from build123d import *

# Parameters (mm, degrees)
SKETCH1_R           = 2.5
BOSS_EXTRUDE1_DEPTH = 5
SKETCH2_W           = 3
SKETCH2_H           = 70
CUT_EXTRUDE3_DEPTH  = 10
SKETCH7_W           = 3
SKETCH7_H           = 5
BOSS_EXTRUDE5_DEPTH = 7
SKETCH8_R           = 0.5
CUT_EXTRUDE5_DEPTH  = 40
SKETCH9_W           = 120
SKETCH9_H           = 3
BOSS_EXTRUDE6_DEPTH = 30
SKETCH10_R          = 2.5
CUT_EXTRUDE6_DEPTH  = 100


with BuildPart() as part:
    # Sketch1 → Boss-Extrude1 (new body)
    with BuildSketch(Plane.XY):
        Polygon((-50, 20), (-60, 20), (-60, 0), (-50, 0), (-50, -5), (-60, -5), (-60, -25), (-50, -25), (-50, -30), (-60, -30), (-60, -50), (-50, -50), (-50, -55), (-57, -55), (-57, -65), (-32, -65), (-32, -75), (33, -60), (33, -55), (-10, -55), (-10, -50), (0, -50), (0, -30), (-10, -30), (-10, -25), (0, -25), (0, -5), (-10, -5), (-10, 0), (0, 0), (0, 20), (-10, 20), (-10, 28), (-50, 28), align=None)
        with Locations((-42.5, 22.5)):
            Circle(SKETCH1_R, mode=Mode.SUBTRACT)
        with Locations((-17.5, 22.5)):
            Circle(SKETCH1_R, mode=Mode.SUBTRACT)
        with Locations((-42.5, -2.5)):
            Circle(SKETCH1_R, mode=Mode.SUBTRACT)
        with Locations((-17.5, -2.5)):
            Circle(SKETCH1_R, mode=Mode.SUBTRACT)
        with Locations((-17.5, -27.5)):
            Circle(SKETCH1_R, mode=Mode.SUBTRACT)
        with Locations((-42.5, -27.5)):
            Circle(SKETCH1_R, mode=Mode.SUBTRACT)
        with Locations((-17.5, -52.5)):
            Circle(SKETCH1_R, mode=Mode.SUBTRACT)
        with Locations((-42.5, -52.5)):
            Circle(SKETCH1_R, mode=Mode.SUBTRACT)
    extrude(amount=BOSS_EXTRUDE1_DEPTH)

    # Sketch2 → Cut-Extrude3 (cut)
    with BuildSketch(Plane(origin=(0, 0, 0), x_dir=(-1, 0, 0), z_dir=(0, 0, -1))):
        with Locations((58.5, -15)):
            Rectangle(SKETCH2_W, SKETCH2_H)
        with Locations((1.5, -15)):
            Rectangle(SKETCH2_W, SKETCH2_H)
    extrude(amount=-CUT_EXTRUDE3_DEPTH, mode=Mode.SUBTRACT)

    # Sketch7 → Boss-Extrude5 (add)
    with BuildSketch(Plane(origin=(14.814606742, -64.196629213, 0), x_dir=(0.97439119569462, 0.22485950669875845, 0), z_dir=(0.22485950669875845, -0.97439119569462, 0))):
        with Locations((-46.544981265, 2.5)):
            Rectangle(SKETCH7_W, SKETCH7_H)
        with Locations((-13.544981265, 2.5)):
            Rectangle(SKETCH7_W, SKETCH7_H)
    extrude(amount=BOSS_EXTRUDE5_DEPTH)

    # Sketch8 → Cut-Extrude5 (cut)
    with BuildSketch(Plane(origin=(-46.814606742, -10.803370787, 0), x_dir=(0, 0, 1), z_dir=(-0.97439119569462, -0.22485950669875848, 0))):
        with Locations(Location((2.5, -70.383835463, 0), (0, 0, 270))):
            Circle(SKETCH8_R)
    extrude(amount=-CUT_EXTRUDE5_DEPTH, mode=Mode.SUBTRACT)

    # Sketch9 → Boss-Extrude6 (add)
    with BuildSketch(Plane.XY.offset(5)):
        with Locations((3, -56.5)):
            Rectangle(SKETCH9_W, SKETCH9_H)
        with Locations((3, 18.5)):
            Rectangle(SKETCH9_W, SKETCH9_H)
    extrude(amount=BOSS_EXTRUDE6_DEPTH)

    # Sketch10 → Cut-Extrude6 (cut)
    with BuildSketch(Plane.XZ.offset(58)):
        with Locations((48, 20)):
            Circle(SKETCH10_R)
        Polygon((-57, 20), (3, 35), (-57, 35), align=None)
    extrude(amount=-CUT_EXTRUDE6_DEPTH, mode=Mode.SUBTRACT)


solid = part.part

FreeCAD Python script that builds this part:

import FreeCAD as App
import Part
import Sketcher
from FreeCAD import Vector
Q = App.Units.Quantity

doc = App.newDocument("Part")
params = doc.addObject("Spreadsheet::Sheet", "Params")
for row, (alias, value) in enumerate([
    ("sketch1_diameter", "5 mm"),
    ("sketch1_width", "10 mm"),
    ("sketch1_width2", "7 mm"),
    ("sketch1_width3", "25 mm"),
    ("sketch1_width4", "43 mm"),
    ("pad1_length", "5 mm"),
    ("sketch2_width", "3 mm"),
    ("sketch2_height", "70 mm"),
    ("pocket1_length", "10 mm"),
    ("sketch3_width", "3 mm"),
    ("sketch3_height", "5 mm"),
    ("pad2_length", "7 mm"),
    ("sketch4_diameter", "1 mm"),
    ("pocket2_length", "40 mm"),
    ("sketch5_width", "120 mm"),
    ("sketch5_height", "3 mm"),
    ("pad3_length", "30 mm"),
    ("sketch6_diameter", "5 mm"),
    ("sketch6_width", "60 mm"),
    ("sketch6_height", "15 mm"),
    ("pocket3_length", "100 mm"),
], start=1):
    params.set(f"A{row}", alias)
    params.set(f"B{row}", "=" + value)
    params.setAlias(f"B{row}", alias)

body = doc.addObject("PartDesign::Body", "Body")

# Sketch on XY plane
sketch1 = doc.addObject("Sketcher::SketchObject", "Sketch")
body.addObject(sketch1)
sketch1.AttachmentSupport = (doc.XY_Plane, [""])
sketch1.MapMode = "FlatFace"
sketch1.addGeometry([
    Part.LineSegment(Vector(-50, 20, 0), Vector(-60, 20, 0)),  # 0
    Part.LineSegment(Vector(-60, 20, 0), Vector(-60, 0, 0)),  # 1
    Part.LineSegment(Vector(-60, 0, 0), Vector(-50, 0, 0)),  # 2
    Part.LineSegment(Vector(-50, 0, 0), Vector(-50, -5, 0)),  # 3
    Part.LineSegment(Vector(-50, -5, 0), Vector(-60, -5, 0)),  # 4
    Part.LineSegment(Vector(-60, -5, 0), Vector(-60, -25, 0)),  # 5
    Part.LineSegment(Vector(-60, -25, 0), Vector(-50, -25, 0)),  # 6
    Part.LineSegment(Vector(-50, -25, 0), Vector(-50, -30, 0)),  # 7
    Part.LineSegment(Vector(-50, -30, 0), Vector(-60, -30, 0)),  # 8
    Part.LineSegment(Vector(-60, -30, 0), Vector(-60, -50, 0)),  # 9
    Part.LineSegment(Vector(-60, -50, 0), Vector(-50, -50, 0)),  # 10
    Part.LineSegment(Vector(-50, -50, 0), Vector(-50, -55, 0)),  # 11
    Part.LineSegment(Vector(-50, -55, 0), Vector(-57, -55, 0)),  # 12
    Part.LineSegment(Vector(-57, -55, 0), Vector(-57, -65, 0)),  # 13
    Part.LineSegment(Vector(-57, -65, 0), Vector(-32, -65, 0)),  # 14
    Part.LineSegment(Vector(-32, -65, 0), Vector(-32, -75, 0)),  # 15
    Part.LineSegment(Vector(-32, -75, 0), Vector(33, -60, 0)),  # 16
    Part.LineSegment(Vector(33, -60, 0), Vector(33, -55, 0)),  # 17
    Part.LineSegment(Vector(33, -55, 0), Vector(-10, -55, 0)),  # 18
    Part.LineSegment(Vector(-10, -55, 0), Vector(-10, -50, 0)),  # 19
    Part.LineSegment(Vector(-10, -50, 0), Vector(0, -50, 0)),  # 20
    Part.LineSegment(Vector(0, -50, 0), Vector(0, -30, 0)),  # 21
    Part.LineSegment(Vector(0, -30, 0), Vector(-10, -30, 0)),  # 22
    Part.LineSegment(Vector(-10, -30, 0), Vector(-10, -25, 0)),  # 23
    Part.LineSegment(Vector(-10, -25, 0), Vector(0, -25, 0)),  # 24
    Part.LineSegment(Vector(0, -25, 0), Vector(0, -5, 0)),  # 25
    Part.LineSegment(Vector(0, -5, 0), Vector(-10, -5, 0)),  # 26
    Part.LineSegment(Vector(-10, -5, 0), Vector(-10, 0, 0)),  # 27
    Part.LineSegment(Vector(-10, 0, 0), Vector(0, 0, 0)),  # 28
    Part.LineSegment(Vector(0, 0, 0), Vector(0, 20, 0)),  # 29
    Part.LineSegment(Vector(0, 20, 0), Vector(-10, 20, 0)),  # 30
    Part.LineSegment(Vector(-10, 20, 0), Vector(-10, 28, 0)),  # 31
    Part.LineSegment(Vector(-10, 28, 0), Vector(-50, 28, 0)),  # 32
    Part.LineSegment(Vector(-50, 28, 0), Vector(-50, 20, 0)),  # 33
    Part.Circle(Vector(-42.5, -52.5, 0), Vector(0, 0, 1), 2.5),  # 34
    Part.Circle(Vector(-42.5, -27.5, 0), Vector(0, 0, 1), 2.5),  # 35
    Part.Circle(Vector(-17.5, -52.5, 0), Vector(0, 0, 1), 2.5),  # 36
    Part.Circle(Vector(-17.5, -27.5, 0), Vector(0, 0, 1), 2.5),  # 37
    Part.Circle(Vector(-42.5, -2.5, 0), Vector(0, 0, 1), 2.5),  # 38
    Part.Circle(Vector(-42.5, 22.5, 0), Vector(0, 0, 1), 2.5),  # 39
    Part.Circle(Vector(-17.5, -2.5, 0), Vector(0, 0, 1), 2.5),  # 40
    Part.Circle(Vector(-17.5, 22.5, 0), Vector(0, 0, 1), 2.5),  # 41
], False)
sketch1.addConstraint([
    Sketcher.Constraint("Coincident", 0, 2, 1, 1),
    Sketcher.Constraint("Coincident", 1, 2, 2, 1),
    Sketcher.Constraint("Coincident", 2, 2, 3, 1),
    Sketcher.Constraint("Coincident", 3, 2, 4, 1),
    Sketcher.Constraint("Coincident", 4, 2, 5, 1),
    Sketcher.Constraint("Coincident", 5, 2, 6, 1),
    Sketcher.Constraint("Coincident", 6, 2, 7, 1),
    Sketcher.Constraint("Coincident", 7, 2, 8, 1),
    Sketcher.Constraint("Coincident", 8, 2, 9, 1),
    Sketcher.Constraint("Coincident", 9, 2, 10, 1),
    Sketcher.Constraint("Coincident", 10, 2, 11, 1),
    Sketcher.Constraint("Coincident", 11, 2, 12, 1),
    Sketcher.Constraint("Coincident", 12, 2, 13, 1),
    Sketcher.Constraint("Coincident", 13, 2, 14, 1),
    Sketcher.Constraint("Coincident", 14, 2, 15, 1),
    Sketcher.Constraint("Coincident", 15, 2, 16, 1),
    Sketcher.Constraint("Coincident", 16, 2, 17, 1),
    Sketcher.Constraint("Coincident", 17, 2, 18, 1),
    Sketcher.Constraint("Coincident", 18, 2, 19, 1),
    Sketcher.Constraint("Coincident", 19, 2, 20, 1),
    Sketcher.Constraint("Coincident", 20, 2, 21, 1),
    Sketcher.Constraint("Coincident", 21, 2, 22, 1),
    Sketcher.Constraint("Coincident", 22, 2, 23, 1),
    Sketcher.Constraint("Coincident", 23, 2, 24, 1),
    Sketcher.Constraint("Coincident", 24, 2, 25, 1),
    Sketcher.Constraint("Coincident", 25, 2, 26, 1),
    Sketcher.Constraint("Coincident", 26, 2, 27, 1),
    Sketcher.Constraint("Coincident", 27, 2, 28, 1),
    Sketcher.Constraint("Coincident", 28, 2, 29, 1),
    Sketcher.Constraint("Coincident", 29, 2, 30, 1),
    Sketcher.Constraint("Coincident", 30, 2, 31, 1),
    Sketcher.Constraint("Coincident", 31, 2, 32, 1),
    Sketcher.Constraint("Coincident", 32, 2, 33, 1),
    Sketcher.Constraint("Coincident", 33, 2, 0, 1),
    Sketcher.Constraint("Horizontal", 0),
    Sketcher.Constraint("Vertical", 1),
    Sketcher.Constraint("Horizontal", 2),
    Sketcher.Constraint("Vertical", 3),
    Sketcher.Constraint("Horizontal", 4),
    Sketcher.Constraint("Vertical", 5),
    Sketcher.Constraint("Horizontal", 6),
    Sketcher.Constraint("Vertical", 7),
    Sketcher.Constraint("Horizontal", 8),
    Sketcher.Constraint("Vertical", 9),
    Sketcher.Constraint("Horizontal", 10),
    Sketcher.Constraint("Vertical", 11),
    Sketcher.Constraint("Horizontal", 12),
    Sketcher.Constraint("Vertical", 13),
    Sketcher.Constraint("Horizontal", 14),
    Sketcher.Constraint("Vertical", 15),
    Sketcher.Constraint("Vertical", 17),
    Sketcher.Constraint("Horizontal", 18),
    Sketcher.Constraint("Vertical", 19),
    Sketcher.Constraint("Horizontal", 20),
    Sketcher.Constraint("Vertical", 21),
    Sketcher.Constraint("Horizontal", 22),
    Sketcher.Constraint("Vertical", 23),
    Sketcher.Constraint("Horizontal", 24),
    Sketcher.Constraint("Vertical", 25),
    Sketcher.Constraint("Horizontal", 26),
    Sketcher.Constraint("Vertical", 27),
    Sketcher.Constraint("Horizontal", 28),
    Sketcher.Constraint("Vertical", 29),
    Sketcher.Constraint("Horizontal", 30),
    Sketcher.Constraint("Vertical", 31),
    Sketcher.Constraint("Horizontal", 32),
    Sketcher.Constraint("Vertical", 33),
    Sketcher.Constraint("Coincident", 28, 2, -1, 1),
    Sketcher.Constraint("Equal", 34, 35),
    Sketcher.Constraint("Equal", 35, 36),
    Sketcher.Constraint("Equal", 36, 37),
    Sketcher.Constraint("Equal", 37, 38),
    Sketcher.Constraint("Equal", 38, 39),
    Sketcher.Constraint("Equal", 39, 40),
    Sketcher.Constraint("Equal", 40, 41),
    Sketcher.Constraint("PointOnObject", 1, 2, -1),
    Sketcher.Constraint("PointOnObject", 20, 2, -2),
    Sketcher.Constraint("PointOnObject", 24, 2, -2),
    Sketcher.Constraint("Horizontal", 34, 3, 36, 3),
    Sketcher.Constraint("Horizontal", 35, 3, 37, 3),
    Sketcher.Constraint("Horizontal", 38, 3, 40, 3),
    Sketcher.Constraint("Horizontal", 39, 3, 41, 3),
    Sketcher.Constraint("Horizontal", 12, 2, 17, 2),
    Sketcher.Constraint("Horizontal", 10, 2, 19, 2),
    Sketcher.Constraint("Horizontal", 8, 2, 21, 2),
    Sketcher.Constraint("Horizontal", 6, 2, 23, 2),
    Sketcher.Constraint("Horizontal", 4, 2, 25, 2),
    Sketcher.Constraint("Horizontal", 0, 2, 29, 2),
    Sketcher.Constraint("Vertical", 34, 3, 35, 3),
    Sketcher.Constraint("Vertical", 36, 3, 37, 3),
    Sketcher.Constraint("Vertical", 35, 3, 38, 3),
    Sketcher.Constraint("Vertical", 38, 3, 39, 3),
    Sketcher.Constraint("Vertical", 37, 3, 40, 3),
    Sketcher.Constraint("Vertical", 40, 3, 41, 3),
    Sketcher.Constraint("Vertical", 1, 2, 4, 2),
    Sketcher.Constraint("Vertical", 3, 2, 6, 2),
    Sketcher.Constraint("Vertical", 5, 2, 8, 2),
    Sketcher.Constraint("Vertical", 7, 2, 10, 2),
    Sketcher.Constraint("Vertical", 19, 2, 22, 2),
    Sketcher.Constraint("Vertical", 23, 2, 26, 2),
    Sketcher.Constraint("Vertical", 27, 2, 30, 2),
    Sketcher.Constraint("Vertical", 11, 2, 32, 2),
    Sketcher.Constraint("Equal", 10, 20),
    Sketcher.Constraint("Equal", 1, 5),
    Sketcher.Constraint("Equal", 3, 7),
    Sketcher.Constraint("Equal", 5, 9),
    Sketcher.Constraint("Equal", 7, 11),
    Sketcher.Constraint("Equal", 30, 13),
    Sketcher.Constraint("Equal", 13, 15),
    Sketcher.Constraint("Equal", 11, 17),
    Sketcher.Constraint("Diameter", 34, Q("5 mm")),
    Sketcher.Constraint("DistanceX", 0, 2, 0, 1, Q("10 mm")),
    Sketcher.Constraint("DistanceX", 12, 2, 12, 1, Q("7 mm")),
    Sketcher.Constraint("DistanceX", 14, 1, 14, 2, Q("25 mm")),
    Sketcher.Constraint("DistanceX", 18, 2, 18, 1, Q("43 mm")),
    Sketcher.Constraint("DistanceX", 32, 2, 32, 1, Q("40 mm")),
    Sketcher.Constraint("DistanceY", 1, 2, 1, 1, Q("20 mm")),
    Sketcher.Constraint("DistanceY", 3, 2, 3, 1, Q("5 mm")),
    Sketcher.Constraint("DistanceY", 31, 1, 31, 2, Q("8 mm")),
    Sketcher.Constraint("DistanceY", 34, 3, 35, 3, Q("25 mm")),
    Sketcher.Constraint("DistanceX", 34, 3, 36, 3, Q("25 mm")),
    Sketcher.Constraint("DistanceY", 35, 3, 38, 3, Q("25 mm")),
    Sketcher.Constraint("DistanceY", 38, 3, 39, 3, Q("25 mm")),
    Sketcher.Constraint("DistanceX", 34, 3, -1, 1, Q("42.5 mm")),
    Sketcher.Constraint("DistanceY", 34, 3, -1, 1, Q("52.5 mm")),
])
sketch1.setExpression("Constraints[110]", "Params.sketch1_diameter")
sketch1.setExpression("Constraints[111]", "Params.sketch1_width")
sketch1.setExpression("Constraints[112]", "Params.sketch1_width2")
sketch1.setExpression("Constraints[113]", "Params.sketch1_width3")
sketch1.setExpression("Constraints[114]", "Params.sketch1_width4")
pad1 = doc.addObject("PartDesign::Pad", "Pad")
body.addObject(pad1)
pad1.Profile = sketch1
pad1.setExpression("Length", "Params.pad1_length")

# Sketch on XY plane
sketch2 = doc.addObject("Sketcher::SketchObject", "Sketch001")
body.addObject(sketch2)
sketch2.AttachmentSupport = (doc.XY_Plane, [""])
sketch2.MapMode = "FlatFace"
sketch2.addGeometry([
    Part.LineSegment(Vector(-57, 20, 0), Vector(-57, -50, 0)),  # 0
    Part.LineSegment(Vector(-57, -50, 0), Vector(-60, -50, 0)),  # 1
    Part.LineSegment(Vector(-60, -50, 0), Vector(-60, 20, 0)),  # 2
    Part.LineSegment(Vector(-60, 20, 0), Vector(-57, 20, 0)),  # 3
    Part.LineSegment(Vector(0, 20, 0), Vector(0, -50, 0)),  # 4
    Part.LineSegment(Vector(0, -50, 0), Vector(-3, -50, 0)),  # 5
    Part.LineSegment(Vector(-3, -50, 0), Vector(-3, 20, 0)),  # 6
    Part.LineSegment(Vector(-3, 20, 0), Vector(0, 20, 0)),  # 7
], False)
sketch2.addConstraint([
    Sketcher.Constraint("Coincident", 0, 2, 1, 1),
    Sketcher.Constraint("Coincident", 1, 2, 2, 1),
    Sketcher.Constraint("Coincident", 2, 2, 3, 1),
    Sketcher.Constraint("Coincident", 3, 2, 0, 1),
    Sketcher.Constraint("Coincident", 4, 2, 5, 1),
    Sketcher.Constraint("Coincident", 5, 2, 6, 1),
    Sketcher.Constraint("Coincident", 6, 2, 7, 1),
    Sketcher.Constraint("Coincident", 7, 2, 4, 1),
    Sketcher.Constraint("Vertical", 0),
    Sketcher.Constraint("Horizontal", 1),
    Sketcher.Constraint("Vertical", 2),
    Sketcher.Constraint("Horizontal", 3),
    Sketcher.Constraint("Vertical", 4),
    Sketcher.Constraint("Horizontal", 5),
    Sketcher.Constraint("Vertical", 6),
    Sketcher.Constraint("Horizontal", 7),
    Sketcher.Constraint("PointOnObject", 4, 2, -2),
    Sketcher.Constraint("Horizontal", 1, 2, 4, 2),
    Sketcher.Constraint("Horizontal", 3, 2, 6, 2),
    Sketcher.Constraint("Equal", 3, 5),
    Sketcher.Constraint("DistanceX", 1, 2, 1, 1, Q("3 mm")),
    Sketcher.Constraint("DistanceY", 0, 2, 0, 1, Q("70 mm")),
    Sketcher.Constraint("DistanceX", 0, 2, -1, 1, Q("57 mm")),
    Sketcher.Constraint("DistanceY", 0, 2, -1, 1, Q("50 mm")),
])
sketch2.setExpression("Constraints[20]", "Params.sketch2_width")
sketch2.setExpression("Constraints[21]", "Params.sketch2_height")
pocket1 = doc.addObject("PartDesign::Pocket", "Pocket")
body.addObject(pocket1)
pocket1.Profile = sketch2
pocket1.setExpression("Length", "Params.pocket1_length")
pocket1.Reversed = True

# Sketch on an angled plane
sketch3 = doc.addObject("Sketcher::SketchObject", "Sketch002")
body.addObject(sketch3)
sketch3.Placement = App.Placement(Vector(14.814607, -64.196629, 0), App.Rotation(Vector(0.974391196, 0.224859507, 0), Vector(0, 0, 1.000000001), Vector(0.224859507, -0.974391196, 0), "ZXY"))
sketch3.addGeometry([
    Part.LineSegment(Vector(-48, 5, 0), Vector(-48, 0, 0)),  # 0
    Part.LineSegment(Vector(-48, 0, 0), Vector(-45, 0, 0)),  # 1
    Part.LineSegment(Vector(-45, 0, 0), Vector(-45, 5, 0)),  # 2
    Part.LineSegment(Vector(-45, 5, 0), Vector(-48, 5, 0)),  # 3
    Part.LineSegment(Vector(-15, 5, 0), Vector(-15, 0, 0)),  # 4
    Part.LineSegment(Vector(-15, 0, 0), Vector(-12, 0, 0)),  # 5
    Part.LineSegment(Vector(-12, 0, 0), Vector(-12, 5, 0)),  # 6
    Part.LineSegment(Vector(-12, 5, 0), Vector(-15, 5, 0)),  # 7
], False)
sketch3.addConstraint([
    Sketcher.Constraint("Coincident", 0, 2, 1, 1),
    Sketcher.Constraint("Coincident", 1, 2, 2, 1),
    Sketcher.Constraint("Coincident", 2, 2, 3, 1),
    Sketcher.Constraint("Coincident", 3, 2, 0, 1),
    Sketcher.Constraint("Coincident", 4, 2, 5, 1),
    Sketcher.Constraint("Coincident", 5, 2, 6, 1),
    Sketcher.Constraint("Coincident", 6, 2, 7, 1),
    Sketcher.Constraint("Coincident", 7, 2, 4, 1),
    Sketcher.Constraint("Vertical", 0),
    Sketcher.Constraint("Horizontal", 1),
    Sketcher.Constraint("Vertical", 2),
    Sketcher.Constraint("Horizontal", 3),
    Sketcher.Constraint("Vertical", 4),
    Sketcher.Constraint("Horizontal", 5),
    Sketcher.Constraint("Vertical", 6),
    Sketcher.Constraint("Horizontal", 7),
    Sketcher.Constraint("PointOnObject", 0, 2, -1),
    Sketcher.Constraint("PointOnObject", 4, 2, -1),
    Sketcher.Constraint("Horizontal", 3, 2, 6, 2),
    Sketcher.Constraint("Equal", 3, 5),
    Sketcher.Constraint("DistanceX", 1, 1, 1, 2, Q("3 mm")),
    Sketcher.Constraint("DistanceY", 0, 2, 0, 1, Q("5 mm")),
    Sketcher.Constraint("DistanceX", 1, 2, 4, 2, Q("30 mm")),
    Sketcher.Constraint("DistanceX", 0, 2, -1, 1, Q("48.044981 mm")),
])
sketch3.setExpression("Constraints[20]", "Params.sketch3_width")
sketch3.setExpression("Constraints[21]", "Params.sketch3_height")
pad2 = doc.addObject("PartDesign::Pad", "Pad001")
body.addObject(pad2)
pad2.Profile = sketch3
pad2.setExpression("Length", "Params.pad2_length")

# Sketch on an angled plane
sketch4 = doc.addObject("Sketcher::SketchObject", "Sketch003")
body.addObject(sketch4)
sketch4.Placement = App.Placement(Vector(-46.814607, -10.803371, 0), App.Rotation(Vector(0, 0, 1), Vector(-0.224859507, 0.974391196, 0), Vector(-0.974391196, -0.224859507, 0), "ZXY"))
sketch4.addGeometry(Part.Circle(Vector(2.5, -70.4, 0), Vector(0, 0, 1), 0.5), False)
sketch4.addConstraint([
    Sketcher.Constraint("Diameter", 0, Q("1 mm")),
    Sketcher.Constraint("DistanceX", -1, 1, 0, 3, Q("2.5 mm")),
    Sketcher.Constraint("DistanceY", 0, 3, -1, 1, Q("70.383836 mm")),
])
sketch4.setExpression("Constraints[0]", "Params.sketch4_diameter")
pocket2 = doc.addObject("PartDesign::Pocket", "Pocket001")
body.addObject(pocket2)
pocket2.Profile = sketch4
pocket2.setExpression("Length", "Params.pocket2_length")

# Sketch on XY plane
sketch5 = doc.addObject("Sketcher::SketchObject", "Sketch004")
body.addObject(sketch5)
sketch5.AttachmentSupport = (doc.XY_Plane, [""])
sketch5.MapMode = "FlatFace"
sketch5.AttachmentOffset = App.Placement(Vector(0, 0, 5), App.Rotation())
sketch5.addGeometry([
    Part.LineSegment(Vector(-57, -55, 0), Vector(-57, -58, 0)),  # 0
    Part.LineSegment(Vector(-57, -58, 0), Vector(63, -58, 0)),  # 1
    Part.LineSegment(Vector(63, -58, 0), Vector(63, -55, 0)),  # 2
    Part.LineSegment(Vector(63, -55, 0), Vector(-57, -55, 0)),  # 3
    Part.LineSegment(Vector(-57, 20, 0), Vector(-57, 17, 0)),  # 4
    Part.LineSegment(Vector(-57, 17, 0), Vector(63, 17, 0)),  # 5
    Part.LineSegment(Vector(63, 17, 0), Vector(63, 20, 0)),  # 6
    Part.LineSegment(Vector(63, 20, 0), Vector(-57, 20, 0)),  # 7
], False)
sketch5.addConstraint([
    Sketcher.Constraint("Coincident", 0, 2, 1, 1),
    Sketcher.Constraint("Coincident", 1, 2, 2, 1),
    Sketcher.Constraint("Coincident", 2, 2, 3, 1),
    Sketcher.Constraint("Coincident", 3, 2, 0, 1),
    Sketcher.Constraint("Coincident", 4, 2, 5, 1),
    Sketcher.Constraint("Coincident", 5, 2, 6, 1),
    Sketcher.Constraint("Coincident", 6, 2, 7, 1),
    Sketcher.Constraint("Coincident", 7, 2, 4, 1),
    Sketcher.Constraint("Vertical", 0),
    Sketcher.Constraint("Horizontal", 1),
    Sketcher.Constraint("Vertical", 2),
    Sketcher.Constraint("Horizontal", 3),
    Sketcher.Constraint("Vertical", 4),
    Sketcher.Constraint("Horizontal", 5),
    Sketcher.Constraint("Vertical", 6),
    Sketcher.Constraint("Horizontal", 7),
    Sketcher.Constraint("Vertical", 3, 2, 4, 2),
    Sketcher.Constraint("Vertical", 2, 2, 5, 2),
    Sketcher.Constraint("Equal", 2, 4),
    Sketcher.Constraint("DistanceX", 1, 1, 1, 2, Q("120 mm")),
    Sketcher.Constraint("DistanceY", 0, 2, 0, 1, Q("3 mm")),
    Sketcher.Constraint("DistanceX", 0, 2, -1, 1, Q("57 mm")),
    Sketcher.Constraint("DistanceY", 0, 2, -1, 1, Q("58 mm")),
    Sketcher.Constraint("DistanceY", -1, 1, 4, 2, Q("17 mm")),
])
sketch5.setExpression("Constraints[19]", "Params.sketch5_width")
sketch5.setExpression("Constraints[20]", "Params.sketch5_height")
pad3 = doc.addObject("PartDesign::Pad", "Pad002")
body.addObject(pad3)
pad3.Profile = sketch5
pad3.setExpression("Length", "Params.pad3_length")

# Sketch on XZ plane
sketch6 = doc.addObject("Sketcher::SketchObject", "Sketch005")
body.addObject(sketch6)
sketch6.AttachmentSupport = (doc.XZ_Plane, [""])
sketch6.MapMode = "FlatFace"
sketch6.AttachmentOffset = App.Placement(Vector(0, 0, 58), App.Rotation())
sketch6.addGeometry([
    Part.Circle(Vector(48, 20, 0), Vector(0, 0, 1), 2.5),
    Part.LineSegment(Vector(-57, 20, 0), Vector(3, 35, 0)),
    Part.LineSegment(Vector(3, 35, 0), Vector(-57, 35, 0)),
    Part.LineSegment(Vector(-57, 35, 0), Vector(-57, 20, 0)),
], False)
sketch6.addConstraint([
    Sketcher.Constraint("Coincident", 1, 2, 2, 1),
    Sketcher.Constraint("Coincident", 2, 2, 3, 1),
    Sketcher.Constraint("Coincident", 3, 2, 1, 1),
    Sketcher.Constraint("Horizontal", 2),
    Sketcher.Constraint("Vertical", 3),
    Sketcher.Constraint("Horizontal", 0, 3, 3, 2),
    Sketcher.Constraint("Diameter", 0, Q("5 mm")),
    Sketcher.Constraint("DistanceX", 2, 2, 2, 1, Q("60 mm")),
    Sketcher.Constraint("DistanceY", 3, 2, 3, 1, Q("15 mm")),
    Sketcher.Constraint("DistanceX", -1, 1, 0, 3, Q("48 mm")),
    Sketcher.Constraint("DistanceY", -1, 1, 0, 3, Q("20 mm")),
    Sketcher.Constraint("DistanceX", -1, 1, 1, 2, Q("3 mm")),
])
sketch6.setExpression("Constraints[6]", "Params.sketch6_diameter")
sketch6.setExpression("Constraints[7]", "Params.sketch6_width")
sketch6.setExpression("Constraints[8]", "Params.sketch6_height")
pocket3 = doc.addObject("PartDesign::Pocket", "Pocket002")
body.addObject(pocket3)
pocket3.Profile = sketch6
pocket3.setExpression("Length", "Params.pocket3_length")

doc.recompute()
